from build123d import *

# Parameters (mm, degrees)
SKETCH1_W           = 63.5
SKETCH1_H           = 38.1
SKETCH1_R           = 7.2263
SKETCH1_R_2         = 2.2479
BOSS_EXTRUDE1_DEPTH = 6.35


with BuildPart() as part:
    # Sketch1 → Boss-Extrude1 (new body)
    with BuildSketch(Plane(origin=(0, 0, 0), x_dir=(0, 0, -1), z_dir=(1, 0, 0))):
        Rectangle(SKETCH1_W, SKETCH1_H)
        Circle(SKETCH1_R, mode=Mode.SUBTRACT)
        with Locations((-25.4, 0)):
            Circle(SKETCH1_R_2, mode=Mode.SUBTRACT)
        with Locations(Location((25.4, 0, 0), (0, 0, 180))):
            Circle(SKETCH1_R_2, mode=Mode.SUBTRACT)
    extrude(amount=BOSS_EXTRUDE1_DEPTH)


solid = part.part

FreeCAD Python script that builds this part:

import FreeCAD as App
import Part
import Sketcher

V = App.Vector
Q = App.Units.Quantity


def add_polygon(sketch, points):
    """Adds a closed chain of lines whose ends are joined by coincident constraints."""
    first, n = sketch.GeometryCount, len(points)
    for a, b in zip(points, points[1:] + points[:1]):
        sketch.addGeometry(Part.LineSegment(App.Vector(*a, 0), App.Vector(*b, 0)), False)
    for i in range(n):
        sketch.addConstraint(Sketcher.Constraint("Coincident", first + i, 2, first + (i + 1) % n, 1))

doc = App.newDocument("Part")
body = doc.addObject("PartDesign::Body", "Body")

sketch1 = body.newObject("Sketcher::SketchObject", "Sketch")
sketch1.AttachmentSupport = (doc.getObject("YZ_Plane"), [""])
sketch1.MapMode = "FlatFace"
add_polygon(sketch1, [(19.1, 31.8), (-19.1, 31.8), (-19.1, -31.8), (19.1, -31.8)])
sketch1.addGeometry(Part.Circle(V(0, 25.4, 0), V(0, 0, 1), 2.2), False)
sketch1.addGeometry(Part.Circle(V(0, 0, 0), V(0, 0, 1), 7.2), False)
sketch1.addGeometry(Part.Circle(V(0, -25.4, 0), V(0, 0, 1), 2.2), False)
sketch1.addConstraint([
    Sketcher.Constraint("Horizontal", 0),
    Sketcher.Constraint("Vertical", 1),
    Sketcher.Constraint("Horizontal", 2),
    Sketcher.Constraint("Vertical", 3),
    Sketcher.Constraint("Coincident", 5, 3, -1, 1),
    Sketcher.Constraint("Equal", 4, 6),
    Sketcher.Constraint("Symmetric", 4, 3, 6, 3, -1, 1),
    Sketcher.Constraint("Symmetric", 0, 2, 2, 2, -1, 1),
    Sketcher.Constraint("PointOnObject", 4, 3, -2),
    Sketcher.Constraint("Diameter", 4, Q("0.177 in")),
    Sketcher.Constraint("Diameter", 5, Q("0.569 in")),
    Sketcher.Constraint("DistanceX", 0, 2, 0, 1, Q("1.5 in")),
    Sketcher.Constraint("DistanceY", 1, 2, 1, 1, Q("2.5 in")),
    Sketcher.Constraint("DistanceY", -1, 1, 4, 3, Q("1 in")),
])
pad1 = body.newObject("PartDesign::Pad", "Pad")
pad1.Profile = sketch1
pad1.Length = Q("0.25 in")

doc.recompute()
